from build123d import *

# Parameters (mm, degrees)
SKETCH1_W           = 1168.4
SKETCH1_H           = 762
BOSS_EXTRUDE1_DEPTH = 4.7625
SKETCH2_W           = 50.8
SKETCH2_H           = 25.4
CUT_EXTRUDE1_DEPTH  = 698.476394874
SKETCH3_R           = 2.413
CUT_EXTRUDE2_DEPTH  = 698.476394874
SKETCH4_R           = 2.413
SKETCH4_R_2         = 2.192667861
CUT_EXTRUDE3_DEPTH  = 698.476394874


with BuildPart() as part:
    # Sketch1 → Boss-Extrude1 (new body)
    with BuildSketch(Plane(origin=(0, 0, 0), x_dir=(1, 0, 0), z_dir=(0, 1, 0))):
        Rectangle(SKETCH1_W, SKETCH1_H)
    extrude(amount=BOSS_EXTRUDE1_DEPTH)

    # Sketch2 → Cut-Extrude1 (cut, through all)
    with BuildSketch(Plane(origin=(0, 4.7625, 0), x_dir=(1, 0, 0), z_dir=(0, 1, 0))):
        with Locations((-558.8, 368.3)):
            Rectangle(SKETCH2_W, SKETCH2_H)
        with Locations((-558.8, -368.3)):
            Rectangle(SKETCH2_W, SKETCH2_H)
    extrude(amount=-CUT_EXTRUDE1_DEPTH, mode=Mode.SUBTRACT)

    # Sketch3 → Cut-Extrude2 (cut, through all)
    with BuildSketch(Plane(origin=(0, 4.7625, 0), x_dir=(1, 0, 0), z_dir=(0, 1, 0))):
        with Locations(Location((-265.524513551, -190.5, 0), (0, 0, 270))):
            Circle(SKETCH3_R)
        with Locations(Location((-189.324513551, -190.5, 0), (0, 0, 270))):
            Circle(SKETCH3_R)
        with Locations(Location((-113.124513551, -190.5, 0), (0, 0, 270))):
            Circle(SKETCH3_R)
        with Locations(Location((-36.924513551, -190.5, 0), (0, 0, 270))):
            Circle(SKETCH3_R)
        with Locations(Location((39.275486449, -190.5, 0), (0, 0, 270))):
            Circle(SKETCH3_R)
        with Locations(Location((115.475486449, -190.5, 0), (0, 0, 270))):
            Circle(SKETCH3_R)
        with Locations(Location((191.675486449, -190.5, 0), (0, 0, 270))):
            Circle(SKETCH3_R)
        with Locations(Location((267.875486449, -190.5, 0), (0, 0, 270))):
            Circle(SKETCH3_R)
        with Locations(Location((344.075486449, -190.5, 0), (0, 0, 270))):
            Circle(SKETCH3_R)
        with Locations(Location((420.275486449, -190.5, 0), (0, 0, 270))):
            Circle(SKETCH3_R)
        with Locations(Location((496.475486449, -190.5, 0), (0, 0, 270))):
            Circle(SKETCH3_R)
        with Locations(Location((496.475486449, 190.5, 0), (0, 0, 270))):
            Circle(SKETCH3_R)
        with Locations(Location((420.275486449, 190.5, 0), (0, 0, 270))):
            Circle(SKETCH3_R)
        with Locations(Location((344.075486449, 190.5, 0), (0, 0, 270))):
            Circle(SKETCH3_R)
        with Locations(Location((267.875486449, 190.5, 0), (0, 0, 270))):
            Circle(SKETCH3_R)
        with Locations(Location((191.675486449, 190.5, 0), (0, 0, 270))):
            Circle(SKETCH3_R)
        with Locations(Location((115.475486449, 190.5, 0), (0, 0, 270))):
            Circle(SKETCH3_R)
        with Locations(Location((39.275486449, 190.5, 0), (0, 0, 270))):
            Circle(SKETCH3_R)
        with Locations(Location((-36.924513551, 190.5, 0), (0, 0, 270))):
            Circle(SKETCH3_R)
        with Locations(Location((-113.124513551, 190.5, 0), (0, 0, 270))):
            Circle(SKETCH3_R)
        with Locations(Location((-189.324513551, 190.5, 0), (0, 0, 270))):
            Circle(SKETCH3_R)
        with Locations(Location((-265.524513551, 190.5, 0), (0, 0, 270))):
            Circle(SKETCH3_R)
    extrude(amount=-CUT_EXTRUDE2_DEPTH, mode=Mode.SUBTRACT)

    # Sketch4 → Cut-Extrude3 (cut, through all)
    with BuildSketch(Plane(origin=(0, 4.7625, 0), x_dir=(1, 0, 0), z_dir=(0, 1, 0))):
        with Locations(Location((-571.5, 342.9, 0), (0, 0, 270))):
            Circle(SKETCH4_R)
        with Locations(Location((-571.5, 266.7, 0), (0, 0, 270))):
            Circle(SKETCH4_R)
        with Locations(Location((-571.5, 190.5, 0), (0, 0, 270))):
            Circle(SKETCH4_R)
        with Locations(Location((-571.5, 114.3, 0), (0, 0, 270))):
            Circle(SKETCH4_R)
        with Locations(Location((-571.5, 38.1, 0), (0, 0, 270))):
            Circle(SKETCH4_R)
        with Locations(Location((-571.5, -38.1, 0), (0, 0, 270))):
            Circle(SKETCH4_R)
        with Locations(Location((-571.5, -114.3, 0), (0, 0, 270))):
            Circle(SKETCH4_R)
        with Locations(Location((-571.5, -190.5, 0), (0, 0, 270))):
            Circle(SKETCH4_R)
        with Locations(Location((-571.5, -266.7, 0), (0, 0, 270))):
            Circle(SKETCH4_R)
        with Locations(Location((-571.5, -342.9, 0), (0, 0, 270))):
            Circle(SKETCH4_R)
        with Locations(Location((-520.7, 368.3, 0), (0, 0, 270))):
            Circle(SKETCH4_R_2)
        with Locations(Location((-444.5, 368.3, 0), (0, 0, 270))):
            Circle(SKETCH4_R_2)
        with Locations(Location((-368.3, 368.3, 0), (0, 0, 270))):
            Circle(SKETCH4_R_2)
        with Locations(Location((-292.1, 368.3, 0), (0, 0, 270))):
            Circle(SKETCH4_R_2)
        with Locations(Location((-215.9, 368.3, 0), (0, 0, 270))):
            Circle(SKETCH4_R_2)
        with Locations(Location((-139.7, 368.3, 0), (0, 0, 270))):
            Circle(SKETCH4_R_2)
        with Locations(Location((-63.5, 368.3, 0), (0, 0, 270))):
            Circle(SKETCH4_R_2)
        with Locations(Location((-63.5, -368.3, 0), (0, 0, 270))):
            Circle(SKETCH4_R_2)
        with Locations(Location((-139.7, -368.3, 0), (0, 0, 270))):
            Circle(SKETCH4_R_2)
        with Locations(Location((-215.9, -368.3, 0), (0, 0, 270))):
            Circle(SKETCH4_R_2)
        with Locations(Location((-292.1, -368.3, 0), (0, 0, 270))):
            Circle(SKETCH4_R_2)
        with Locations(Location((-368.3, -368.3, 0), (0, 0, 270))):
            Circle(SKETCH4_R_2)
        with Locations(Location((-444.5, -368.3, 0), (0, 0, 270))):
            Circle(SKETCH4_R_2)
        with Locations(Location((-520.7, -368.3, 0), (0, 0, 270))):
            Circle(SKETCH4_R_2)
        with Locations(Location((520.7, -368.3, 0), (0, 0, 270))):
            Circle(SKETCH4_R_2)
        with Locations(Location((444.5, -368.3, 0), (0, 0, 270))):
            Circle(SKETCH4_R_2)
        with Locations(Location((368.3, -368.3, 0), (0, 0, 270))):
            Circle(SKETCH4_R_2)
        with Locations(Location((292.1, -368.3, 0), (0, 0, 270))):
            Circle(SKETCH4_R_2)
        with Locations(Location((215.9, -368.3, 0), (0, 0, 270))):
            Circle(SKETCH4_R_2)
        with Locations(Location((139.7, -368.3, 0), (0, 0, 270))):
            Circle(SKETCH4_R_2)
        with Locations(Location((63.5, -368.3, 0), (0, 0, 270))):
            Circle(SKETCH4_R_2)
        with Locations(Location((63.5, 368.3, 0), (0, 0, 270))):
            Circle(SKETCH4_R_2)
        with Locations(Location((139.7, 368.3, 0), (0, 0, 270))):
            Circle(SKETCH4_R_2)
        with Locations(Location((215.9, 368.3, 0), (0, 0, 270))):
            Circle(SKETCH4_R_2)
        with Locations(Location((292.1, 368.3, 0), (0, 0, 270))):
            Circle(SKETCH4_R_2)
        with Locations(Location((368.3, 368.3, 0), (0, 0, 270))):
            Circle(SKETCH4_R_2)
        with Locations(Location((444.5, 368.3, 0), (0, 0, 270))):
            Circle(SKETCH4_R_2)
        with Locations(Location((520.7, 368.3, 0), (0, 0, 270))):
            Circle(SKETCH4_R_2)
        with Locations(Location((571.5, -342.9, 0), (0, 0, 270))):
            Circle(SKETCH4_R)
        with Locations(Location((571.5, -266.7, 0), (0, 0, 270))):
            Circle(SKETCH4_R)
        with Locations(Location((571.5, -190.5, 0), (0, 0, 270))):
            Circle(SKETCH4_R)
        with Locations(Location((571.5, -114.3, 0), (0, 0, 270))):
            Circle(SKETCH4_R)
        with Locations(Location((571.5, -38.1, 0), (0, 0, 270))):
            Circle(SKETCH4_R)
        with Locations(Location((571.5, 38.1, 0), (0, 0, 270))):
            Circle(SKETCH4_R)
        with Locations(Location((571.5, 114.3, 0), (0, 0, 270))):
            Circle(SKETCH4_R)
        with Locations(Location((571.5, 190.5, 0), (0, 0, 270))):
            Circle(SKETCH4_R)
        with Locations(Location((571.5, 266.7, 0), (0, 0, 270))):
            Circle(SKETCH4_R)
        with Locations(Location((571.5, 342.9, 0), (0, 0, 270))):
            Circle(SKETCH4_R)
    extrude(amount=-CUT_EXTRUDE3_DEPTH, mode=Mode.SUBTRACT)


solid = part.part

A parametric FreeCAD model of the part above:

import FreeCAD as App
import Part
import Sketcher
from FreeCAD import Vector
Q = App.Units.Quantity


def add_polygon(sketch, points):
    """Adds a closed chain of lines whose ends are joined by coincident constraints."""
    first, n = sketch.GeometryCount, len(points)
    for a, b in zip(points, points[1:] + points[:1]):
        sketch.addGeometry(Part.LineSegment(App.Vector(*a, 0), App.Vector(*b, 0)), False)
    for i in range(n):
        sketch.addConstraint(Sketcher.Constraint("Coincident", first + i, 2, first + (i + 1) % n, 1))

doc = App.newDocument("Part")
body = doc.addObject("PartDesign::Body", "Body")

# Sketch on XZ plane
sketch1 = doc.addObject("Sketcher::SketchObject", "Sketch")
body.addObject(sketch1)
sketch1.AttachmentSupport = (doc.XZ_Plane, [""])
sketch1.MapMode = "FlatFace"
add_polygon(sketch1, [(-584, -381), (-584, 381), (584, 381), (584, -381)])  # lines 0-3
sketch1.addConstraint(Sketcher.Constraint("Vertical", 0))
sketch1.addConstraint(Sketcher.Constraint("Horizontal", 1))
sketch1.addConstraint(Sketcher.Constraint("Vertical", 2))
sketch1.addConstraint(Sketcher.Constraint("Horizontal", 3))
sketch1.addConstraint(Sketcher.Constraint("Symmetric", 0, 2, 2, 2, -1, 1))
sketch1.addConstraint(Sketcher.Constraint("DistanceX", 1, 1, 1, 2, Q("46 in")))
sketch1.addConstraint(Sketcher.Constraint("DistanceY", 0, 1, 0, 2, Q("30 in")))
pad1 = doc.addObject("PartDesign::Pad", "Pad")
body.addObject(pad1)
pad1.Profile = sketch1
pad1.Length = Q("0.1875 in")
pad1.Reversed = True

# Sketch on XZ plane
sketch2 = doc.addObject("Sketcher::SketchObject", "Sketch001")
body.addObject(sketch2)
sketch2.AttachmentSupport = (doc.XZ_Plane, [""])
sketch2.MapMode = "FlatFace"
sketch2.AttachmentOffset = App.Placement(Vector(0, 0, -0.1875 * 25.4), App.Rotation())
add_polygon(sketch2, [(-584, -381), (-584, -356), (-533, -356), (-533, -381)])  # lines 0-3
add_polygon(sketch2, [(-584, 356), (-584, 381), (-533, 381), (-533, 356)])  # lines 4-7
sketch2.addConstraint(Sketcher.Constraint("Vertical", 0))
sketch2.addConstraint(Sketcher.Constraint("Horizontal", 1))
sketch2.addConstraint(Sketcher.Constraint("Vertical", 2))
sketch2.addConstraint(Sketcher.Constraint("Horizontal", 3))
sketch2.addConstraint(Sketcher.Constraint("Vertical", 4))
sketch2.addConstraint(Sketcher.Constraint("Horizontal", 5))
sketch2.addConstraint(Sketcher.Constraint("Vertical", 6))
sketch2.addConstraint(Sketcher.Constraint("Horizontal", 7))
sketch2.addConstraint(Sketcher.Constraint("Symmetric", 3, 2, 4, 2, -1))
sketch2.addConstraint(Sketcher.Constraint("Symmetric", 1, 2, 6, 2, -1))
sketch2.addConstraint(Sketcher.Constraint("DistanceX", 1, 1, 1, 2, Q("2 in")))
sketch2.addConstraint(Sketcher.Constraint("DistanceY", 0, 1, 0, 2, Q("1 in")))
sketch2.addConstraint(Sketcher.Constraint("DistanceX", 0, 2, -1, 1, Q("23 in")))
sketch2.addConstraint(Sketcher.Constraint("DistanceY", 0, 2, -1, 1, Q("14 in")))
pocket1 = doc.addObject("PartDesign::Pocket", "Pocket")
body.addObject(pocket1)
pocket1.Profile = sketch2
pocket1.Type = "ThroughAll"
pocket1.Reversed = True

# Sketch on XZ plane
sketch3 = doc.addObject("Sketcher::SketchObject", "Sketch002")
body.addObject(sketch3)
sketch3.AttachmentSupport = (doc.XZ_Plane, [""])
sketch3.MapMode = "FlatFace"
sketch3.AttachmentOffset = App.Placement(Vector(0, 0, -0.1875 * 25.4), App.Rotation())
sketch3.addGeometry(Part.Circle(Vector(-265.5, 190.5, 0), Vector(0, 0, 1), 2.4), False)
sketch3.addGeometry(Part.Circle(Vector(-189.3, 190.5, 0), Vector(0, 0, 1), 2.4), False)
sketch3.addGeometry(Part.Circle(Vector(-113.1, 190.5, 0), Vector(0, 0, 1), 2.4), False)
sketch3.addGeometry(Part.Circle(Vector(-36.9, 190.5, 0), Vector(0, 0, 1), 2.4), False)
sketch3.addGeometry(Part.Circle(Vector(39.3, 190.5, 0), Vector(0, 0, 1), 2.4), False)
sketch3.addGeometry(Part.Circle(Vector(115.5, 190.5, 0), Vector(0, 0, 1), 2.4), False)
sketch3.addGeometry(Part.Circle(Vector(191.7, 190.5, 0), Vector(0, 0, 1), 2.4), False)
sketch3.addGeometry(Part.Circle(Vector(267.9, 190.5, 0), Vector(0, 0, 1), 2.4), False)
sketch3.addGeometry(Part.Circle(Vector(344.1, 190.5, 0), Vector(0, 0, 1), 2.4), False)
sketch3.addGeometry(Part.Circle(Vector(420.3, 190.5, 0), Vector(0, 0, 1), 2.4), False)
sketch3.addGeometry(Part.Circle(Vector(496.5, 190.5, 0), Vector(0, 0, 1), 2.4), False)
sketch3.addGeometry(Part.Circle(Vector(496.5, -190.5, 0), Vector(0, 0, 1), 2.4), False)
sketch3.addGeometry(Part.Circle(Vector(420.3, -190.5, 0), Vector(0, 0, 1), 2.4), False)
sketch3.addGeometry(Part.Circle(Vector(344.1, -190.5, 0), Vector(0, 0, 1), 2.4), False)
sketch3.addGeometry(Part.Circle(Vector(267.9, -190.5, 0), Vector(0, 0, 1), 2.4), False)
sketch3.addGeometry(Part.Circle(Vector(191.7, -190.5, 0), Vector(0, 0, 1), 2.4), False)
sketch3.addGeometry(Part.Circle(Vector(115.5, -190.5, 0), Vector(0, 0, 1), 2.4), False)
sketch3.addGeometry(Part.Circle(Vector(39.3, -190.5, 0), Vector(0, 0, 1), 2.4), False)
sketch3.addGeometry(Part.Circle(Vector(-36.9, -190.5, 0), Vector(0, 0, 1), 2.4), False)
sketch3.addGeometry(Part.Circle(Vector(-113.1, -190.5, 0), Vector(0, 0, 1), 2.4), False)
sketch3.addGeometry(Part.Circle(Vector(-189.3, -190.5, 0), Vector(0, 0, 1), 2.4), False)
sketch3.addGeometry(Part.Circle(Vector(-265.5, -190.5, 0), Vector(0, 0, 1), 2.4), False)
sketch3.addConstraint(Sketcher.Constraint("Equal", 0, 1))
sketch3.addConstraint(Sketcher.Constraint("Equal", 1, 2))
sketch3.addConstraint(Sketcher.Constraint("Equal", 2, 3))
sketch3.addConstraint(Sketcher.Constraint("Equal", 3, 4))
sketch3.addConstraint(Sketcher.Constraint("Equal", 4, 5))
sketch3.addConstraint(Sketcher.Constraint("Equal", 5, 6))
sketch3.addConstraint(Sketcher.Constraint("Equal", 6, 7))
sketch3.addConstraint(Sketcher.Constraint("Equal", 7, 8))
sketch3.addConstraint(Sketcher.Constraint("Equal", 8, 9))
sketch3.addConstraint(Sketcher.Constraint("Equal", 9, 10))
sketch3.addConstraint(Sketcher.Constraint("Equal", 10, 11))
sketch3.addConstraint(Sketcher.Constraint("Equal", 11, 12))
sketch3.addConstraint(Sketcher.Constraint("Equal", 12, 13))
sketch3.addConstraint(Sketcher.Constraint("Equal", 13, 14))
sketch3.addConstraint(Sketcher.Constraint("Equal", 14, 15))
sketch3.addConstraint(Sketcher.Constraint("Equal", 15, 16))
sketch3.addConstraint(Sketcher.Constraint("Equal", 16, 17))
sketch3.addConstraint(Sketcher.Constraint("Equal", 17, 18))
sketch3.addConstraint(Sketcher.Constraint("Equal", 18, 19))
sketch3.addConstraint(Sketcher.Constraint("Equal", 19, 20))
sketch3.addConstraint(Sketcher.Constraint("Equal", 20, 21))
sketch3.addConstraint(Sketcher.Constraint("Symmetric", 10, 3, 11, 3, -1))
sketch3.addConstraint(Sketcher.Constraint("Symmetric", 9, 3, 12, 3, -1))
sketch3.addConstraint(Sketcher.Constraint("Symmetric", 8, 3, 13, 3, -1))
sketch3.addConstraint(Sketcher.Constraint("Symmetric", 7, 3, 14, 3, -1))
sketch3.addConstraint(Sketcher.Constraint("Symmetric", 6, 3, 15, 3, -1))
sketch3.addConstraint(Sketcher.Constraint("Symmetric", 5, 3, 16, 3, -1))
sketch3.addConstraint(Sketcher.Constraint("Symmetric", 4, 3, 17, 3, -1))
sketch3.addConstraint(Sketcher.Constraint("Symmetric", 3, 3, 18, 3, -1))
sketch3.addConstraint(Sketcher.Constraint("Symmetric", 2, 3, 19, 3, -1))
sketch3.addConstraint(Sketcher.Constraint("Symmetric", 1, 3, 20, 3, -1))
sketch3.addConstraint(Sketcher.Constraint("Symmetric", 0, 3, 21, 3, -1))
sketch3.addConstraint(Sketcher.Constraint("Horizontal", 0, 3, 1, 3))
sketch3.addConstraint(Sketcher.Constraint("Horizontal", 1, 3, 2, 3))
sketch3.addConstraint(Sketcher.Constraint("Horizontal", 2, 3, 3, 3))
sketch3.addConstraint(Sketcher.Constraint("Horizontal", 3, 3, 4, 3))
sketch3.addConstraint(Sketcher.Constraint("Horizontal", 4, 3, 5, 3))
sketch3.addConstraint(Sketcher.Constraint("Horizontal", 5, 3, 6, 3))
sketch3.addConstraint(Sketcher.Constraint("Horizontal", 6, 3, 7, 3))
sketch3.addConstraint(Sketcher.Constraint("Horizontal", 7, 3, 8, 3))
sketch3.addConstraint(Sketcher.Constraint("Horizontal", 8, 3, 9, 3))
sketch3.addConstraint(Sketcher.Constraint("Horizontal", 9, 3, 10, 3))
sketch3.addConstraint(Sketcher.Constraint("Diameter", 0, Q("0.19 in")))
sketch3.addConstraint(Sketcher.Constraint("DistanceX", 0, 3, 1, 3, Q("3 in")))
sketch3.addConstraint(Sketcher.Constraint("DistanceX", 1, 3, 2, 3, Q("3 in")))
sketch3.addConstraint(Sketcher.Constraint("DistanceX", 2, 3, 3, 3, Q("3 in")))
sketch3.addConstraint(Sketcher.Constraint("DistanceX", 3, 3, 4, 3, Q("3 in")))
sketch3.addConstraint(Sketcher.Constraint("DistanceX", 4, 3, 5, 3, Q("3 in")))
sketch3.addConstraint(Sketcher.Constraint("DistanceX", 5, 3, 6, 3, Q("3 in")))
sketch3.addConstraint(Sketcher.Constraint("DistanceX", 6, 3, 7, 3, Q("3 in")))
sketch3.addConstraint(Sketcher.Constraint("DistanceX", 7, 3, 8, 3, Q("3 in")))
sketch3.addConstraint(Sketcher.Constraint("DistanceX", 8, 3, 9, 3, Q("3 in")))
sketch3.addConstraint(Sketcher.Constraint("DistanceX", 9, 3, 10, 3, Q("3 in")))
sketch3.addConstraint(Sketcher.Constraint("DistanceY", 11, 3, 10, 3, Q("15 in")))
sketch3.addConstraint(Sketcher.Constraint("DistanceX", 0, 3, -1, 1, Q("265.524514 mm")))
pocket2 = doc.addObject("PartDesign::Pocket", "Pocket001")
body.addObject(pocket2)
pocket2.Profile = sketch3
pocket2.Type = "ThroughAll"
pocket2.Reversed = True

# Sketch on XZ plane
sketch4 = doc.addObject("Sketcher::SketchObject", "Sketch003")
body.addObject(sketch4)
sketch4.AttachmentSupport = (doc.XZ_Plane, [""])
sketch4.MapMode = "FlatFace"
sketch4.AttachmentOffset = App.Placement(Vector(0, 0, -0.1875 * 25.4), App.Rotation())
sketch4.addGeometry(Part.Circle(Vector(-571.5, -342.9, 0), Vector(0, 0, 1), 2.4), False)
sketch4.addGeometry(Part.Circle(Vector(-571.5, -266.7, 0), Vector(0, 0, 1), 2.4), False)
sketch4.addGeometry(Part.Circle(Vector(-571.5, -190.5, 0), Vector(0, 0, 1), 2.4), False)
sketch4.addGeometry(Part.Circle(Vector(-571.5, -114.3, 0), Vector(0, 0, 1), 2.4), False)
sketch4.addGeometry(Part.Circle(Vector(-571.5, -38.1, 0), Vector(0, 0, 1), 2.4), False)
sketch4.addGeometry(Part.Circle(Vector(-571.5, 38.1, 0), Vector(0, 0, 1), 2.4), False)
sketch4.addGeometry(Part.Circle(Vector(-571.5, 114.3, 0), Vector(0, 0, 1), 2.4), False)
sketch4.addGeometry(Part.Circle(Vector(-571.5, 190.5, 0), Vector(0, 0, 1), 2.4), False)
sketch4.addGeometry(Part.Circle(Vector(-571.5, 266.7, 0), Vector(0, 0, 1), 2.4), False)
sketch4.addGeometry(Part.Circle(Vector(-571.5, 342.9, 0), Vector(0, 0, 1), 2.4), False)
sketch4.addGeometry(Part.Circle(Vector(-520.7, -368.3, 0), Vector(0, 0, 1), 2.2), False)
sketch4.addGeometry(Part.Circle(Vector(-444.5, -368.3, 0), Vector(0, 0, 1), 2.2), False)
sketch4.addGeometry(Part.Circle(Vector(-368.3, -368.3, 0), Vector(0, 0, 1), 2.2), False)
sketch4.addGeometry(Part.Circle(Vector(-292.1, -368.3, 0), Vector(0, 0, 1), 2.2), False)
sketch4.addGeometry(Part.Circle(Vector(-215.9, -368.3, 0), Vector(0, 0, 1), 2.2), False)
sketch4.addGeometry(Part.Circle(Vector(-139.7, -368.3, 0), Vector(0, 0, 1), 2.2), False)
sketch4.addGeometry(Part.Circle(Vector(-63.5, -368.3, 0), Vector(0, 0, 1), 2.2), False)
sketch4.addGeometry(Part.Circle(Vector(-63.5, 368.3, 0), Vector(0, 0, 1), 2.2), False)
sketch4.addGeometry(Part.Circle(Vector(-139.7, 368.3, 0), Vector(0, 0, 1), 2.2), False)
sketch4.addGeometry(Part.Circle(Vector(-215.9, 368.3, 0), Vector(0, 0, 1), 2.2), False)
sketch4.addGeometry(Part.Circle(Vector(-292.1, 368.3, 0), Vector(0, 0, 1), 2.2), False)
sketch4.addGeometry(Part.Circle(Vector(-368.3, 368.3, 0), Vector(0, 0, 1), 2.2), False)
sketch4.addGeometry(Part.Circle(Vector(-444.5, 368.3, 0), Vector(0, 0, 1), 2.2), False)
sketch4.addGeometry(Part.Circle(Vector(-520.7, 368.3, 0), Vector(0, 0, 1), 2.2), False)
sketch4.addGeometry(Part.Circle(Vector(520.7, 368.3, 0), Vector(0, 0, 1), 2.2), False)
sketch4.addGeometry(Part.Circle(Vector(444.5, 368.3, 0), Vector(0, 0, 1), 2.2), False)
sketch4.addGeometry(Part.Circle(Vector(368.3, 368.3, 0), Vector(0, 0, 1), 2.2), False)
sketch4.addGeometry(Part.Circle(Vector(292.1, 368.3, 0), Vector(0, 0, 1), 2.2), False)
sketch4.addGeometry(Part.Circle(Vector(215.9, 368.3, 0), Vector(0, 0, 1), 2.2), False)
sketch4.addGeometry(Part.Circle(Vector(139.7, 368.3, 0), Vector(0, 0, 1), 2.2), False)
sketch4.addGeometry(Part.Circle(Vector(63.5, 368.3, 0), Vector(0, 0, 1), 2.2), False)
sketch4.addGeometry(Part.Circle(Vector(63.5, -368.3, 0), Vector(0, 0, 1), 2.2), False)
sketch4.addGeometry(Part.Circle(Vector(139.7, -368.3, 0), Vector(0, 0, 1), 2.2), False)
sketch4.addGeometry(Part.Circle(Vector(215.9, -368.3, 0), Vector(0, 0, 1), 2.2), False)
sketch4.addGeometry(Part.Circle(Vector(292.1, -368.3, 0), Vector(0, 0, 1), 2.2), False)
sketch4.addGeometry(Part.Circle(Vector(368.3, -368.3, 0), Vector(0, 0, 1), 2.2), False)
sketch4.addGeometry(Part.Circle(Vector(444.5, -368.3, 0), Vector(0, 0, 1), 2.2), False)
sketch4.addGeometry(Part.Circle(Vector(520.7, -368.3, 0), Vector(0, 0, 1), 2.2), False)
sketch4.addGeometry(Part.Circle(Vector(571.5, 342.9, 0), Vector(0, 0, 1), 2.4), False)
sketch4.addGeometry(Part.Circle(Vector(571.5, 266.7, 0), Vector(0, 0, 1), 2.4), False)
sketch4.addGeometry(Part.Circle(Vector(571.5, 190.5, 0), Vector(0, 0, 1), 2.4), False)
sketch4.addGeometry(Part.Circle(Vector(571.5, 114.3, 0), Vector(0, 0, 1), 2.4), False)
sketch4.addGeometry(Part.Circle(Vector(571.5, 38.1, 0), Vector(0, 0, 1), 2.4), False)
sketch4.addGeometry(Part.Circle(Vector(571.5, -38.1, 0), Vector(0, 0, 1), 2.4), False)
sketch4.addGeometry(Part.Circle(Vector(571.5, -114.3, 0), Vector(0, 0, 1), 2.4), False)
sketch4.addGeometry(Part.Circle(Vector(571.5, -190.5, 0), Vector(0, 0, 1), 2.4), False)
sketch4.addGeometry(Part.Circle(Vector(571.5, -266.7, 0), Vector(0, 0, 1), 2.4), False)
sketch4.addGeometry(Part.Circle(Vector(571.5, -342.9, 0), Vector(0, 0, 1), 2.4), False)
sketch4.addConstraint(Sketcher.Constraint("Equal", 0, 1))
sketch4.addConstraint(Sketcher.Constraint("Equal", 1, 2))
sketch4.addConstraint(Sketcher.Constraint("Equal", 2, 3))
sketch4.addConstraint(Sketcher.Constraint("Equal", 3, 4))
sketch4.addConstraint(Sketcher.Constraint("Equal", 4, 5))
sketch4.addConstraint(Sketcher.Constraint("Equal", 5, 6))
sketch4.addConstraint(Sketcher.Constraint("Equal", 6, 7))
sketch4.addConstraint(Sketcher.Constraint("Equal", 7, 8))
sketch4.addConstraint(Sketcher.Constraint("Equal", 8, 9))
sketch4.addConstraint(Sketcher.Constraint("Equal", 10, 11))
sketch4.addConstraint(Sketcher.Constraint("Equal", 11, 12))
sketch4.addConstraint(Sketcher.Constraint("Equal", 12, 13))
sketch4.addConstraint(Sketcher.Constraint("Equal", 13, 14))
sketch4.addConstraint(Sketcher.Constraint("Equal", 14, 15))
sketch4.addConstraint(Sketcher.Constraint("Equal", 15, 16))
sketch4.addConstraint(Sketcher.Constraint("Equal", 16, 17))
sketch4.addConstraint(Sketcher.Constraint("Equal", 17, 18))
sketch4.addConstraint(Sketcher.Constraint("Equal", 18, 19))
sketch4.addConstraint(Sketcher.Constraint("Equal", 19, 20))
sketch4.addConstraint(Sketcher.Constraint("Equal", 20, 21))
sketch4.addConstraint(Sketcher.Constraint("Equal", 21, 22))
sketch4.addConstraint(Sketcher.Constraint("Equal", 22, 23))
sketch4.addConstraint(Sketcher.Constraint("Equal", 23, 24))
sketch4.addConstraint(Sketcher.Constraint("Equal", 24, 25))
sketch4.addConstraint(Sketcher.Constraint("Equal", 25, 26))
sketch4.addConstraint(Sketcher.Constraint("Equal", 26, 27))
sketch4.addConstraint(Sketcher.Constraint("Equal", 27, 28))
sketch4.addConstraint(Sketcher.Constraint("Equal", 28, 29))
sketch4.addConstraint(Sketcher.Constraint("Equal", 29, 30))
sketch4.addConstraint(Sketcher.Constraint("Equal", 30, 31))
sketch4.addConstraint(Sketcher.Constraint("Equal", 31, 32))
sketch4.addConstraint(Sketcher.Constraint("Equal", 32, 33))
sketch4.addConstraint(Sketcher.Constraint("Equal", 33, 34))
sketch4.addConstraint(Sketcher.Constraint("Equal", 34, 35))
sketch4.addConstraint(Sketcher.Constraint("Equal", 35, 36))
sketch4.addConstraint(Sketcher.Constraint("Equal", 36, 37))
sketch4.addConstraint(Sketcher.Constraint("Equal", 9, 38))
sketch4.addConstraint(Sketcher.Constraint("Equal", 38, 39))
sketch4.addConstraint(Sketcher.Constraint("Equal", 39, 40))
sketch4.addConstraint(Sketcher.Constraint("Equal", 40, 41))
sketch4.addConstraint(Sketcher.Constraint("Equal", 41, 42))
sketch4.addConstraint(Sketcher.Constraint("Equal", 42, 43))
sketch4.addConstraint(Sketcher.Constraint("Equal", 43, 44))
sketch4.addConstraint(Sketcher.Constraint("Equal", 44, 45))
sketch4.addConstraint(Sketcher.Constraint("Equal", 45, 46))
sketch4.addConstraint(Sketcher.Constraint("Equal", 46, 47))
sketch4.addConstraint(Sketcher.Constraint("Symmetric", 10, 3, 24, 3, -1, 1))
sketch4.addConstraint(Sketcher.Constraint("Symmetric", 11, 3, 25, 3, -1, 1))
sketch4.addConstraint(Sketcher.Constraint("Symmetric", 12, 3, 26, 3, -1, 1))
sketch4.addConstraint(Sketcher.Constraint("Symmetric", 13, 3, 27, 3, -1, 1))
sketch4.addConstraint(Sketcher.Constraint("Symmetric", 14, 3, 28, 3, -1, 1))
sketch4.addConstraint(Sketcher.Constraint("Symmetric", 15, 3, 29, 3, -1, 1))
sketch4.addConstraint(Sketcher.Constraint("Symmetric", 16, 3, 30, 3, -1, 1))
sketch4.addConstraint(Sketcher.Constraint("Symmetric", 17, 3, 31, 3, -1, 1))
sketch4.addConstraint(Sketcher.Constraint("Symmetric", 18, 3, 32, 3, -1, 1))
sketch4.addConstraint(Sketcher.Constraint("Symmetric", 19, 3, 33, 3, -1, 1))
sketch4.addConstraint(Sketcher.Constraint("Symmetric", 20, 3, 34, 3, -1, 1))
sketch4.addConstraint(Sketcher.Constraint("Symmetric", 21, 3, 35, 3, -1, 1))
sketch4.addConstraint(Sketcher.Constraint("Symmetric", 22, 3, 36, 3, -1, 1))
sketch4.addConstraint(Sketcher.Constraint("Symmetric", 23, 3, 37, 3, -1, 1))
sketch4.addConstraint(Sketcher.Constraint("Symmetric", 0, 3, 38, 3, -1, 1))
sketch4.addConstraint(Sketcher.Constraint("Symmetric", 1, 3, 39, 3, -1, 1))
sketch4.addConstraint(Sketcher.Constraint("Symmetric", 2, 3, 40, 3, -1, 1))
sketch4.addConstraint(Sketcher.Constraint("Symmetric", 3, 3, 41, 3, -1, 1))
sketch4.addConstraint(Sketcher.Constraint("Symmetric", 4, 3, 42, 3, -1, 1))
sketch4.addConstraint(Sketcher.Constraint("Symmetric", 5, 3, 43, 3, -1, 1))
sketch4.addConstraint(Sketcher.Constraint("Symmetric", 6, 3, 44, 3, -1, 1))
sketch4.addConstraint(Sketcher.Constraint("Symmetric", 7, 3, 45, 3, -1, 1))
sketch4.addConstraint(Sketcher.Constraint("Symmetric", 8, 3, 46, 3, -1, 1))
sketch4.addConstraint(Sketcher.Constraint("Symmetric", 9, 3, 47, 3, -1, 1))
sketch4.addConstraint(Sketcher.Constraint("Symmetric", 23, 3, 24, 3, -2))
sketch4.addConstraint(Sketcher.Constraint("Symmetric", 22, 3, 25, 3, -2))
sketch4.addConstraint(Sketcher.Constraint("Symmetric", 21, 3, 26, 3, -2))
sketch4.addConstraint(Sketcher.Constraint("Symmetric", 20, 3, 27, 3, -2))
sketch4.addConstraint(Sketcher.Constraint("Symmetric", 19, 3, 28, 3, -2))
sketch4.addConstraint(Sketcher.Constraint("Symmetric", 18, 3, 29, 3, -2))
sketch4.addConstraint(Sketcher.Constraint("Symmetric", 17, 3, 30, 3, -2))
sketch4.addConstraint(Sketcher.Constraint("Symmetric", 9, 3, 38, 3, -2))
sketch4.addConstraint(Sketcher.Constraint("Symmetric", 8, 3, 39, 3, -2))
sketch4.addConstraint(Sketcher.Constraint("Symmetric", 7, 3, 40, 3, -2))
sketch4.addConstraint(Sketcher.Constraint("Symmetric", 6, 3, 41, 3, -2))
sketch4.addConstraint(Sketcher.Constraint("Symmetric", 5, 3, 42, 3, -2))
sketch4.addConstraint(Sketcher.Constraint("Horizontal", 10, 3, 11, 3))
sketch4.addConstraint(Sketcher.Constraint("Horizontal", 11, 3, 12, 3))
sketch4.addConstraint(Sketcher.Constraint("Horizontal", 12, 3, 13, 3))
sketch4.addConstraint(Sketcher.Constraint("Horizontal", 13, 3, 14, 3))
sketch4.addConstraint(Sketcher.Constraint("Horizontal", 14, 3, 15, 3))
sketch4.addConstraint(Sketcher.Constraint("Horizontal", 15, 3, 16, 3))
sketch4.addConstraint(Sketcher.Constraint("Vertical", 0, 3, 1, 3))
sketch4.addConstraint(Sketcher.Constraint("Vertical", 1, 3, 2, 3))
sketch4.addConstraint(Sketcher.Constraint("Vertical", 2, 3, 3, 3))
sketch4.addConstraint(Sketcher.Constraint("Vertical", 3, 3, 4, 3))
sketch4.addConstraint(Sketcher.Constraint("Diameter", 0, Q("0.19 in")))
sketch4.addConstraint(Sketcher.Constraint("DistanceY", 0, 3, 1, 3, Q("3 in")))
sketch4.addConstraint(Sketcher.Constraint("DistanceY", 1, 3, 2, 3, Q("3 in")))
sketch4.addConstraint(Sketcher.Constraint("DistanceY", 2, 3, 3, 3, Q("3 in")))
sketch4.addConstraint(Sketcher.Constraint("DistanceY", 3, 3, 4, 3, Q("3 in")))
sketch4.addConstraint(Sketcher.Constraint("DistanceY", 4, 3, 5, 3, Q("3 in")))
sketch4.addConstraint(Sketcher.Constraint("DistanceX", 0, 3, 10, 3, Q("2 in")))
sketch4.addConstraint(Sketcher.Constraint("DistanceY", 10, 3, 0, 3, Q("1 in")))
sketch4.addConstraint(Sketcher.Constraint("DistanceX", 10, 3, 11, 3, Q("3 in")))
sketch4.addConstraint(Sketcher.Constraint("DistanceX", 11, 3, 12, 3, Q("3 in")))
sketch4.addConstraint(Sketcher.Constraint("DistanceX", 12, 3, 13, 3, Q("3 in")))
sketch4.addConstraint(Sketcher.Constraint("DistanceX", 13, 3, 14, 3, Q("3 in")))
sketch4.addConstraint(Sketcher.Constraint("DistanceX", 14, 3, 15, 3, Q("3 in")))
sketch4.addConstraint(Sketcher.Constraint("DistanceX", 15, 3, 16, 3, Q("3 in")))
sketch4.addConstraint(Sketcher.Constraint("DistanceX", 17, 3, 24, 3, Q("23 in")))
sketch4.addConstraint(Sketcher.Constraint("Diameter", 10, Q("4.385336 mm")))
pocket3 = doc.addObject("PartDesign::Pocket", "Pocket002")
body.addObject(pocket3)
pocket3.Profile = sketch4
pocket3.Type = "ThroughAll"
pocket3.Reversed = True

doc.recompute()
